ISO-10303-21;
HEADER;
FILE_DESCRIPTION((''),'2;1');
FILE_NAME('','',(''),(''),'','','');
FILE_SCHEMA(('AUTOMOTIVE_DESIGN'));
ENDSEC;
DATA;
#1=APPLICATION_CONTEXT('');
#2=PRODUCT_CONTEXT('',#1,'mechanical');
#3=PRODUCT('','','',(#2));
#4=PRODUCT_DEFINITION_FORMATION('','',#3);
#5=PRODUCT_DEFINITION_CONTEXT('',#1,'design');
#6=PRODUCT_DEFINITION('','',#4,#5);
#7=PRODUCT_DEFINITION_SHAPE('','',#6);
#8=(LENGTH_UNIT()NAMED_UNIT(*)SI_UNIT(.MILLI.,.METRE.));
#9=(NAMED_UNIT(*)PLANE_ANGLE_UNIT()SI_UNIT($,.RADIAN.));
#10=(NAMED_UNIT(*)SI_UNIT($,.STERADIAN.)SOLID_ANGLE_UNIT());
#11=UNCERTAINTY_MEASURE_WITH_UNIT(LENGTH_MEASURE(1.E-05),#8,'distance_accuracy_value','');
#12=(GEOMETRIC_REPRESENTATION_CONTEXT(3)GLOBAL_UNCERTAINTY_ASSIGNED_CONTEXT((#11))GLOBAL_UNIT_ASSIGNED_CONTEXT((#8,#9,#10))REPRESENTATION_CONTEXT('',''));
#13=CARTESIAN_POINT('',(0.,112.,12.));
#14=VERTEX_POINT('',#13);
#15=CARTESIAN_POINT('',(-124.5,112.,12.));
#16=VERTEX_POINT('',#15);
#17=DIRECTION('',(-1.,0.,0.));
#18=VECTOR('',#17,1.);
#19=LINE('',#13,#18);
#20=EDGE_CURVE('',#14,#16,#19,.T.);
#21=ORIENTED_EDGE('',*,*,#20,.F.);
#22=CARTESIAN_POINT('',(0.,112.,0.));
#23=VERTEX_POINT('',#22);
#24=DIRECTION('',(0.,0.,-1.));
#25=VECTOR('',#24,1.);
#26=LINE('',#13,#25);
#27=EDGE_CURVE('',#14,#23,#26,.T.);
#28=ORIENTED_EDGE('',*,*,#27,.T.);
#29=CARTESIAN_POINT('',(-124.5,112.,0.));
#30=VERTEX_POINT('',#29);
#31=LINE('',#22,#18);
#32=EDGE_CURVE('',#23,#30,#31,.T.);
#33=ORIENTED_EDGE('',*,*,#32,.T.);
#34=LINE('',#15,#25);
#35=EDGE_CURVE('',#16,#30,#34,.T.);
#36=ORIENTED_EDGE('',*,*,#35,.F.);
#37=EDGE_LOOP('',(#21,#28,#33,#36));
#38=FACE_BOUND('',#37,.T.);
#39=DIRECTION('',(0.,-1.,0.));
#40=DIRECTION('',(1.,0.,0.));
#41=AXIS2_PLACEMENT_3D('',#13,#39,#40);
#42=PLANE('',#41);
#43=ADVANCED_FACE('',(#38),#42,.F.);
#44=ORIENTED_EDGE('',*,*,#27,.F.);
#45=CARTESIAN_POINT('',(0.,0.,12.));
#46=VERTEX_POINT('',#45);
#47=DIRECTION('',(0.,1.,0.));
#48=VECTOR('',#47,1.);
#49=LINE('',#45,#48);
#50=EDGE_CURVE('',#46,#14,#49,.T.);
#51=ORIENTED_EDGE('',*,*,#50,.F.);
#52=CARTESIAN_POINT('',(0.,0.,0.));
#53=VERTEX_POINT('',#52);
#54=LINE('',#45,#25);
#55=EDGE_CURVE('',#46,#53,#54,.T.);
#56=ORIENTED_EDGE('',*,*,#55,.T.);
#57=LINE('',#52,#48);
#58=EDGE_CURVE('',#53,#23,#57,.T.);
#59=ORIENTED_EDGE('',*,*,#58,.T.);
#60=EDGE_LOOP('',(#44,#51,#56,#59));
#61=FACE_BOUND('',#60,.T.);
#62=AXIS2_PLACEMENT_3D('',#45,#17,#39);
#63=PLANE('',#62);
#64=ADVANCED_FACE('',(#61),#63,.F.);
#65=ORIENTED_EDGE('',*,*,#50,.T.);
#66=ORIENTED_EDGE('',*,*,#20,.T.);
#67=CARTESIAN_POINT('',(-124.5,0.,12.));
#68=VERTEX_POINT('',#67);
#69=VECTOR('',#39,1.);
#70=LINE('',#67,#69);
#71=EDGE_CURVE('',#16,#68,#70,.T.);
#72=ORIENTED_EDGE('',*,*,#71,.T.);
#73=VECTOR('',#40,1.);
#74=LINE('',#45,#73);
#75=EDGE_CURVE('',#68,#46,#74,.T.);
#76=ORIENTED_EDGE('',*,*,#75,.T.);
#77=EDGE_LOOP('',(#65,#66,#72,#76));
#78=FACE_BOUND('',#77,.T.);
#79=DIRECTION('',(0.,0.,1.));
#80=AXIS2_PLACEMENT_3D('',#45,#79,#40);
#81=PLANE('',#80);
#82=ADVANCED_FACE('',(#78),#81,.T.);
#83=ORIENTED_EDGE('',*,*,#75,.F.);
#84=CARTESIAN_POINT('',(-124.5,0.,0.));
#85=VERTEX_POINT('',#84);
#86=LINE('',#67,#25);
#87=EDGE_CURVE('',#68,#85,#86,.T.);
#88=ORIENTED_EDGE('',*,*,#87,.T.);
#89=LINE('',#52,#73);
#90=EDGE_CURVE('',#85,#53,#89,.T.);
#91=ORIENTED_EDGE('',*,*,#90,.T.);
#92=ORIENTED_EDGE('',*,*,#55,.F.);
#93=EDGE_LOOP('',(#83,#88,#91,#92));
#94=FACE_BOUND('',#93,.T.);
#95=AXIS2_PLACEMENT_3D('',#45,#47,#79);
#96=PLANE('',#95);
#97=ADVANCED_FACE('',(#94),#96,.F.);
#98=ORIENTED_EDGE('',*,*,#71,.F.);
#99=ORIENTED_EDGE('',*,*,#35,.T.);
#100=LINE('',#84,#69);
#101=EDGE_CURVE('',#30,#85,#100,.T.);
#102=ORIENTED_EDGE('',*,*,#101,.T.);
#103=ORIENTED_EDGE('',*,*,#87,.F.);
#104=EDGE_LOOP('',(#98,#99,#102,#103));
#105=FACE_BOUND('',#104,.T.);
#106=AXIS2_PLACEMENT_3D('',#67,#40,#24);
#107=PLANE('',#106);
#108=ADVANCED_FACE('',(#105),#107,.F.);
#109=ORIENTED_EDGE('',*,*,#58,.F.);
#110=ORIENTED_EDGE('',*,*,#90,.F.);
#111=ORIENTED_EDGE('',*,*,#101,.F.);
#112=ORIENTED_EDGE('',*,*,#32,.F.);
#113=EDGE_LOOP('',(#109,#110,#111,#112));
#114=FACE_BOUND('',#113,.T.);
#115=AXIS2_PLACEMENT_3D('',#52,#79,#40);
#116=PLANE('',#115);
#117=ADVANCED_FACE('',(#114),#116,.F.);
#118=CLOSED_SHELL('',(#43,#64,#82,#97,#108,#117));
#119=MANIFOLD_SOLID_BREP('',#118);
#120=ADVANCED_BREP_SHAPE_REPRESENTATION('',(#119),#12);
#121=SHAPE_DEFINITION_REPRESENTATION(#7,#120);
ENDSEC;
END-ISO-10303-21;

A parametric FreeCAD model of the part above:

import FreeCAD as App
import Part
import Sketcher
from FreeCAD import Vector
Q = App.Units.Quantity


def add_polygon(sketch, points):
    """Adds a closed chain of lines whose ends are joined by coincident constraints."""
    first, n = sketch.GeometryCount, len(points)
    for a, b in zip(points, points[1:] + points[:1]):
        sketch.addGeometry(Part.LineSegment(App.Vector(*a, 0), App.Vector(*b, 0)), False)
    for i in range(n):
        sketch.addConstraint(Sketcher.Constraint("Coincident", first + i, 2, first + (i + 1) % n, 1))

doc = App.newDocument("Part")
body = doc.addObject("PartDesign::Body", "Body")

# Sketch on XY plane
sketch1 = body.newObject("Sketcher::SketchObject", "Sketch")
sketch1.AttachmentSupport = (doc.getObject("XY_Plane"), [""])
sketch1.MapMode = "FlatFace"
add_polygon(sketch1, [(-124, 112), (-124, 0), (0, 0), (0, 112)])  # lines 0-3
sketch1.addConstraint([
    Sketcher.Constraint("Vertical", 0),
    Sketcher.Constraint("Horizontal", 1),
    Sketcher.Constraint("Vertical", 2),
    Sketcher.Constraint("Horizontal", 3),
    Sketcher.Constraint("Coincident", 1, 2, -1, 1),
    Sketcher.Constraint("DistanceY", 0, 2, 0, 1, Q("112 mm")),
    Sketcher.Constraint("DistanceX", 1, 1, 1, 2, Q("124.5 mm")),
])
pad1 = body.newObject("PartDesign::Pad", "Pad")
pad1.Profile = sketch1
pad1.Length = 12

doc.recompute()
